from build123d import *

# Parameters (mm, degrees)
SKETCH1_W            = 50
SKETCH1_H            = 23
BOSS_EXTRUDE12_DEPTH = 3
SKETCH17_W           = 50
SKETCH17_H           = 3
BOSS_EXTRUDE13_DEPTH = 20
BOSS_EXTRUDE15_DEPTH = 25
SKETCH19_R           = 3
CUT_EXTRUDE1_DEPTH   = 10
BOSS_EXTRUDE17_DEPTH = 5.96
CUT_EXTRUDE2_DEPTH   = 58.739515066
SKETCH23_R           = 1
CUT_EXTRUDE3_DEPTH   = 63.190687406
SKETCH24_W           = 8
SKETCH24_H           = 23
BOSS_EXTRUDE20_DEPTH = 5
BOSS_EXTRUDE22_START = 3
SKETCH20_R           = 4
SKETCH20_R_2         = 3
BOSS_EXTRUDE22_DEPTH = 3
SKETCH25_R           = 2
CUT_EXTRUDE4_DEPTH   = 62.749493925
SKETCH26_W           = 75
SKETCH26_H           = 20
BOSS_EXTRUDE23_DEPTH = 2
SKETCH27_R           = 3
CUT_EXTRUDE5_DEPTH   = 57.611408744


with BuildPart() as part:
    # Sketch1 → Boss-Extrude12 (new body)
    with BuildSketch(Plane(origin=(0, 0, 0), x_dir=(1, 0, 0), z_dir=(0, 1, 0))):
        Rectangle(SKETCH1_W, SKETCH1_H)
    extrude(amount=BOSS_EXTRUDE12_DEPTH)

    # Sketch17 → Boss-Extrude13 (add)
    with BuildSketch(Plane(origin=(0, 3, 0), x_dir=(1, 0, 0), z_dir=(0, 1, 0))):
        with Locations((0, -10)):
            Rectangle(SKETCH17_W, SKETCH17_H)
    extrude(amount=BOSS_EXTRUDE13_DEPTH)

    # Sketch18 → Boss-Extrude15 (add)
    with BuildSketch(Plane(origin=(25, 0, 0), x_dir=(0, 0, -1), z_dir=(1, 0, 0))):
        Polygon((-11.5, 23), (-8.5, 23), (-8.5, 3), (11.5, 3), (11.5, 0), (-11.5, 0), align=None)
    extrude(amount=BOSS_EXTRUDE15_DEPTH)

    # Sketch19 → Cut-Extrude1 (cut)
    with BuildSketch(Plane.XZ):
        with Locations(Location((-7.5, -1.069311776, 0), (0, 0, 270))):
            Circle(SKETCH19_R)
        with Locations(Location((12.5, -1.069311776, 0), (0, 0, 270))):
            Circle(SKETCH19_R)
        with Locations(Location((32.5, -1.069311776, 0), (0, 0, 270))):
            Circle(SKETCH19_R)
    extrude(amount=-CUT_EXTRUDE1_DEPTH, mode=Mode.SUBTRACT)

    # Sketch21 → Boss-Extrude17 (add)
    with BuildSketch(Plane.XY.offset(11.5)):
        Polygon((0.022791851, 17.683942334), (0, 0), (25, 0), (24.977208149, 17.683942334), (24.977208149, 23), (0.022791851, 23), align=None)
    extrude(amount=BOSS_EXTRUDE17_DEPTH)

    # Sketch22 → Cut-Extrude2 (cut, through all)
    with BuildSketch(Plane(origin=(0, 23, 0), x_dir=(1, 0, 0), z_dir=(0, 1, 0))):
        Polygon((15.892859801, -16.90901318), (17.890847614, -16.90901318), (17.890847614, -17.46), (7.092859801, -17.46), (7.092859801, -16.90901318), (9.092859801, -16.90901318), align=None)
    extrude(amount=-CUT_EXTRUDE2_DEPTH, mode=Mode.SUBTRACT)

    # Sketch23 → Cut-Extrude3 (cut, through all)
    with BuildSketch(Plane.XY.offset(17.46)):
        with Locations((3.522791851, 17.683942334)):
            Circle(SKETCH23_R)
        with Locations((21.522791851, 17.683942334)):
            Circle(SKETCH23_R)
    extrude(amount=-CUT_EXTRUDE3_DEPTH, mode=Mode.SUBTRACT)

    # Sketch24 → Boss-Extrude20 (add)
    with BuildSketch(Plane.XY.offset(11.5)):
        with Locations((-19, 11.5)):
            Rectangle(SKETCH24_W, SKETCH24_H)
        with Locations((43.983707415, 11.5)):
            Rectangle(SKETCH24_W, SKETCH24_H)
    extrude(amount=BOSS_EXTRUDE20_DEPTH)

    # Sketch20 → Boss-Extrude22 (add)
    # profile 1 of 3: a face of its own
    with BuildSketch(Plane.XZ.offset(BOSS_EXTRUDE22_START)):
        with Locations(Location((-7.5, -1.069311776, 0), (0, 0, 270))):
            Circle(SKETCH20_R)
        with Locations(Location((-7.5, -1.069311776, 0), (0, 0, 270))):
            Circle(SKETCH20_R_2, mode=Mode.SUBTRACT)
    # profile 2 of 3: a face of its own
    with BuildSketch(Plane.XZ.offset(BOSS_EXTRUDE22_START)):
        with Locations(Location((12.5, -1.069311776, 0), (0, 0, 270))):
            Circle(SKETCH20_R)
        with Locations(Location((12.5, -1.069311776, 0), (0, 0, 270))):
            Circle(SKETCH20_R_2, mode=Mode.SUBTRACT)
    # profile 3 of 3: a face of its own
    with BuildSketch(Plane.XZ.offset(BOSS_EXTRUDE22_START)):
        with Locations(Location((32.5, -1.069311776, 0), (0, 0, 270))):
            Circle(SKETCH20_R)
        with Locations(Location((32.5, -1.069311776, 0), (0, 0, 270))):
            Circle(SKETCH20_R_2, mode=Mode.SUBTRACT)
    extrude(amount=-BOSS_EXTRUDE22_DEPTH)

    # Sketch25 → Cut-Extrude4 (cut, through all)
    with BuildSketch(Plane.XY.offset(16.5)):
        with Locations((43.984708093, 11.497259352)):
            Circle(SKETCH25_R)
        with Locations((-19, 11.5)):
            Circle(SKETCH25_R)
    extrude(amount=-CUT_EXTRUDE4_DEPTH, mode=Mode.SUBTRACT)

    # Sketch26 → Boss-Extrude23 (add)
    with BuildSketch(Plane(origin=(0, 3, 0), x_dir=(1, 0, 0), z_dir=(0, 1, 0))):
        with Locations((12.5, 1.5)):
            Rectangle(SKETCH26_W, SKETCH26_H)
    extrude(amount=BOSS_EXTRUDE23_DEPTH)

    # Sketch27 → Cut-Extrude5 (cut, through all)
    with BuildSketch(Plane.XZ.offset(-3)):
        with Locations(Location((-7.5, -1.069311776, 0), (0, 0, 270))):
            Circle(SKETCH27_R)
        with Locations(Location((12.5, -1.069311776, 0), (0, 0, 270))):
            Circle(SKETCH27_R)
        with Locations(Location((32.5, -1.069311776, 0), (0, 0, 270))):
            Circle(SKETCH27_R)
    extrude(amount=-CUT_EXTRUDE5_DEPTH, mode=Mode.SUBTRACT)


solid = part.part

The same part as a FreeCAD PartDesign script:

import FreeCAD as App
import Part
import Sketcher
Q = App.Units.Quantity

doc = App.newDocument("Part")
body = doc.addObject("PartDesign::Body", "Body")

# Sketch on XZ plane
sketch1 = body.newObject("Sketcher::SketchObject", "Sketch")
sketch1.AttachmentSupport = (doc.getObject("XZ_Plane"), [""])
sketch1.MapMode = "FlatFace"
sketch1.addGeometry([
    Part.LineSegment(App.Vector(-25, -12, 0), App.Vector(-25, 12, 0)),
    Part.LineSegment(App.Vector(-25, 12, 0), App.Vector(25, 12, 0)),
    Part.LineSegment(App.Vector(25, 12, 0), App.Vector(25, -12, 0)),
    Part.LineSegment(App.Vector(25, -12, 0), App.Vector(-25, -12, 0)),
], False)
sketch1.addConstraint([
    Sketcher.Constraint("Coincident", 0, 2, 1, 1),
    Sketcher.Constraint("Coincident", 1, 2, 2, 1),
    Sketcher.Constraint("Coincident", 2, 2, 3, 1),
    Sketcher.Constraint("Coincident", 3, 2, 0, 1),
    Sketcher.Constraint("Vertical", 0),
    Sketcher.Constraint("Horizontal", 1),
    Sketcher.Constraint("Vertical", 2),
    Sketcher.Constraint("Horizontal", 3),
    Sketcher.Constraint("Symmetric", 0, 2, 2, 2, -1, 1),
    Sketcher.Constraint("DistanceX", 1, 1, 1, 2, Q("50 mm")),
    Sketcher.Constraint("DistanceY", 0, 1, 0, 2, Q("23 mm")),
])
pad1 = body.newObject("PartDesign::Pad", "Pad")
pad1.Profile = sketch1
pad1.Length = 3
pad1.Reversed = True

# Sketch on XZ plane
sketch2 = body.newObject("Sketcher::SketchObject", "Sketch001")
sketch2.AttachmentSupport = (doc.getObject("XZ_Plane"), [""])
sketch2.MapMode = "FlatFace"
sketch2.AttachmentOffset = App.Placement(App.Vector(0, 0, -3), App.Rotation())
sketch2.addGeometry([
    Part.LineSegment(App.Vector(-25, 8.5, 0), App.Vector(-25, 11.5, 0)),
    Part.LineSegment(App.Vector(-25, 11.5, 0), App.Vector(25, 11.5, 0)),
    Part.LineSegment(App.Vector(25, 11.5, 0), App.Vector(25, 8.5, 0)),
    Part.LineSegment(App.Vector(25, 8.5, 0), App.Vector(-25, 8.5, 0)),
], False)
sketch2.addConstraint([
    Sketcher.Constraint("Coincident", 0, 2, 1, 1),
    Sketcher.Constraint("Coincident", 1, 2, 2, 1),
    Sketcher.Constraint("Coincident", 2, 2, 3, 1),
    Sketcher.Constraint("Coincident", 3, 2, 0, 1),
    Sketcher.Constraint("Vertical", 0),
    Sketcher.Constraint("Horizontal", 1),
    Sketcher.Constraint("Vertical", 2),
    Sketcher.Constraint("Horizontal", 3),
    Sketcher.Constraint("DistanceX", 1, 1, 1, 2, Q("50 mm")),
    Sketcher.Constraint("DistanceY", 0, 1, 0, 2, Q("3 mm")),
    Sketcher.Constraint("DistanceX", 0, 2, -1, 1, Q("25 mm")),
    Sketcher.Constraint("DistanceY", -1, 1, 0, 2, Q("11.5 mm")),
])
pad2 = body.newObject("PartDesign::Pad", "Pad001")
pad2.Profile = sketch2
pad2.Length = 20
pad2.Reversed = True

# Sketch on YZ plane
sketch3 = body.newObject("Sketcher::SketchObject", "Sketch002")
sketch3.AttachmentSupport = (doc.getObject("YZ_Plane"), [""])
sketch3.MapMode = "FlatFace"
sketch3.AttachmentOffset = App.Placement(App.Vector(0, 0, 25), App.Rotation())
sketch3.addGeometry([
    Part.LineSegment(App.Vector(23, 8.5, 0), App.Vector(23, 11.5, 0)),  # 0
    Part.LineSegment(App.Vector(23, 11.5, 0), App.Vector(0, 11.5, 0)),  # 1
    Part.LineSegment(App.Vector(0, 11.5, 0), App.Vector(0, -11.5, 0)),  # 2
    Part.LineSegment(App.Vector(0, -11.5, 0), App.Vector(3, -11.5, 0)),  # 3
    Part.LineSegment(App.Vector(3, -11.5, 0), App.Vector(3, 8.5, 0)),  # 4
    Part.LineSegment(App.Vector(3, 8.5, 0), App.Vector(23, 8.5, 0)),  # 5
], False)
sketch3.addConstraint([
    Sketcher.Constraint("Coincident", 0, 2, 1, 1),
    Sketcher.Constraint("Coincident", 1, 2, 2, 1),
    Sketcher.Constraint("Coincident", 2, 2, 3, 1),
    Sketcher.Constraint("Coincident", 3, 2, 4, 1),
    Sketcher.Constraint("Coincident", 4, 2, 5, 1),
    Sketcher.Constraint("Coincident", 5, 2, 0, 1),
    Sketcher.Constraint("Vertical", 0),
    Sketcher.Constraint("Horizontal", 1),
    Sketcher.Constraint("Vertical", 2),
    Sketcher.Constraint("Horizontal", 3),
    Sketcher.Constraint("Vertical", 4),
    Sketcher.Constraint("Horizontal", 5),
    Sketcher.Constraint("Symmetric", 1, 2, 2, 2, -1, 1),
    Sketcher.Constraint("Equal", 3, 0),
    Sketcher.Constraint("Equal", 1, 2),
    Sketcher.Constraint("DistanceX", 1, 2, 1, 1, Q("23 mm")),
    Sketcher.Constraint("DistanceX", 3, 1, 3, 2, Q("3 mm")),
])
pad3 = body.newObject("PartDesign::Pad", "Pad002")
pad3.Profile = sketch3
pad3.Length = 25

# Sketch on XZ plane
sketch4 = body.newObject("Sketcher::SketchObject", "Sketch003")
sketch4.AttachmentSupport = (doc.getObject("XZ_Plane"), [""])
sketch4.MapMode = "FlatFace"
sketch4.addGeometry([
    Part.Circle(App.Vector(-7.5, -1.1, 0), App.Vector(0, 0, 1), 3),
    Part.Circle(App.Vector(12.5, -1.1, 0), App.Vector(0, 0, 1), 3),
    Part.Circle(App.Vector(32.5, -1.1, 0), App.Vector(0, 0, 1), 3),
], False)
sketch4.addConstraint([
    Sketcher.Constraint("Equal", 0, 1),
    Sketcher.Constraint("Equal", 1, 2),
    Sketcher.Constraint("Horizontal", 0, 3, 1, 3),
    Sketcher.Constraint("Horizontal", 1, 3, 2, 3),
    Sketcher.Constraint("Diameter", 0, Q("6 mm")),
    Sketcher.Constraint("DistanceX", 0, 3, 1, 3, Q("20 mm")),
    Sketcher.Constraint("DistanceX", 1, 3, 2, 3, Q("20 mm")),
    Sketcher.Constraint("DistanceX", 0, 3, -1, 1, Q("7.5 mm")),
    Sketcher.Constraint("DistanceY", 0, 3, -1, 1, Q("1.069312 mm")),
])
pocket1 = body.newObject("PartDesign::Pocket", "Pocket")
pocket1.Profile = sketch4
pocket1.Length = 10

# Sketch on XY plane
sketch5 = body.newObject("Sketcher::SketchObject", "Sketch004")
sketch5.AttachmentSupport = (doc.getObject("XY_Plane"), [""])
sketch5.MapMode = "FlatFace"
sketch5.AttachmentOffset = App.Placement(App.Vector(0, 0, 11.5), App.Rotation())
sketch5.addGeometry([
    Part.LineSegment(App.Vector(0, 18, 0), App.Vector(0, 0, 0)),  # 0
    Part.LineSegment(App.Vector(0, 0, 0), App.Vector(25, 0, 0)),  # 1
    Part.LineSegment(App.Vector(25, 0, 0), App.Vector(25, 18, 0)),  # 2
    Part.LineSegment(App.Vector(25, 18, 0), App.Vector(25, 23, 0)),  # 3
    Part.LineSegment(App.Vector(25, 23, 0), App.Vector(0, 23, 0)),  # 4
    Part.LineSegment(App.Vector(0, 23, 0), App.Vector(0, 18, 0)),  # 5
], False)
sketch5.addConstraint([
    Sketcher.Constraint("Coincident", 0, 2, 1, 1),
    Sketcher.Constraint("Coincident", 1, 2, 2, 1),
    Sketcher.Constraint("Coincident", 2, 2, 3, 1),
    Sketcher.Constraint("Coincident", 3, 2, 4, 1),
    Sketcher.Constraint("Coincident", 4, 2, 5, 1),
    Sketcher.Constraint("Coincident", 5, 2, 0, 1),
    Sketcher.Constraint("Horizontal", 1),
    Sketcher.Constraint("Vertical", 3),
    Sketcher.Constraint("Horizontal", 4),
    Sketcher.Constraint("Vertical", 5),
    Sketcher.Constraint("Coincident", 0, 2, -1, 1),
    Sketcher.Constraint("Horizontal", 2, 2, 5, 2),
    Sketcher.Constraint("DistanceX", 1, 1, 1, 2, Q("25 mm")),
    Sketcher.Constraint("DistanceY", -1, 1, 3, 2, Q("23 mm")),
    Sketcher.Constraint("DistanceX", 4, 2, 4, 1, Q("24.954416 mm")),
    Sketcher.Constraint("DistanceY", 3, 1, 3, 2, Q("5.316058 mm")),
    Sketcher.Constraint("DistanceX", -1, 1, 2, 2, Q("24.977208 mm")),
])
pad4 = body.newObject("PartDesign::Pad", "Pad003")
pad4.Profile = sketch5
pad4.Length = 5.96

# Sketch on XZ plane
sketch6 = body.newObject("Sketcher::SketchObject", "Sketch005")
sketch6.AttachmentSupport = (doc.getObject("XZ_Plane"), [""])
sketch6.MapMode = "FlatFace"
sketch6.AttachmentOffset = App.Placement(App.Vector(0, 0, -23), App.Rotation())
sketch6.addGeometry([
    Part.LineSegment(App.Vector(17.9, 16.9, 0), App.Vector(7.1, 16.9, 0)),
    Part.LineSegment(App.Vector(7.1, 16.9, 0), App.Vector(7.1, 17.5, 0)),
    Part.LineSegment(App.Vector(7.1, 17.5, 0), App.Vector(17.9, 17.5, 0)),
    Part.LineSegment(App.Vector(17.9, 17.5, 0), App.Vector(17.9, 16.9, 0)),
], False)
sketch6.addConstraint([
    Sketcher.Constraint("Coincident", 0, 2, 1, 1),
    Sketcher.Constraint("Coincident", 1, 2, 2, 1),
    Sketcher.Constraint("Coincident", 2, 2, 3, 1),
    Sketcher.Constraint("Coincident", 3, 2, 0, 1),
    Sketcher.Constraint("Horizontal", 0),
    Sketcher.Constraint("Vertical", 1),
    Sketcher.Constraint("Horizontal", 2),
    Sketcher.Constraint("Vertical", 3),
    Sketcher.Constraint("DistanceY", -1, 1, 1, 2, Q("17.46 mm")),
    Sketcher.Constraint("DistanceX", 0, 2, 0, 1, Q("10.797988 mm")),
    Sketcher.Constraint("DistanceY", 1, 1, 1, 2, Q("0.550987 mm")),
    Sketcher.Constraint("DistanceX", -1, 1, 0, 2, Q("7.09286 mm")),
])
pocket2 = body.newObject("PartDesign::Pocket", "Pocket001")
pocket2.Profile = sketch6
pocket2.Type = "ThroughAll"
pocket2.Reversed = True

# Sketch on XY plane
sketch7 = body.newObject("Sketcher::SketchObject", "Sketch006")
sketch7.AttachmentSupport = (doc.getObject("XY_Plane"), [""])
sketch7.MapMode = "FlatFace"
sketch7.AttachmentOffset = App.Placement(App.Vector(0, 0, 17.46), App.Rotation())
sketch7.addGeometry([
    Part.Circle(App.Vector(3.5, 17.7, 0), App.Vector(0, 0, 1), 1),
    Part.Circle(App.Vector(21.5, 17.7, 0), App.Vector(0, 0, 1), 1),
], False)
sketch7.addConstraint([
    Sketcher.Constraint("Equal", 0, 1),
    Sketcher.Constraint("Horizontal", 0, 3, 1, 3),
    Sketcher.Constraint("Diameter", 0, Q("2 mm")),
    Sketcher.Constraint("DistanceX", 0, 3, 1, 3, Q("18 mm")),
    Sketcher.Constraint("DistanceX", -1, 1, 0, 3, Q("3.522792 mm")),
    Sketcher.Constraint("DistanceY", -1, 1, 0, 3, Q("17.683942 mm")),
])
pocket3 = body.newObject("PartDesign::Pocket", "Pocket002")
pocket3.Profile = sketch7
pocket3.Type = "ThroughAll"

# Sketch on XY plane
sketch8 = body.newObject("Sketcher::SketchObject", "Sketch007")
sketch8.AttachmentSupport = (doc.getObject("XY_Plane"), [""])
sketch8.MapMode = "FlatFace"
sketch8.AttachmentOffset = App.Placement(App.Vector(0, 0, 11.5), App.Rotation())
sketch8.addGeometry([
    Part.LineSegment(App.Vector(-23, 23, 0), App.Vector(-23, 0, 0)),  # 0
    Part.LineSegment(App.Vector(-23, 0, 0), App.Vector(-15, 0, 0)),  # 1
    Part.LineSegment(App.Vector(-15, 0, 0), App.Vector(-15, 23, 0)),  # 2
    Part.LineSegment(App.Vector(-15, 23, 0), App.Vector(-23, 23, 0)),  # 3
    Part.LineSegment(App.Vector(40, 23, 0), App.Vector(40, 0, 0)),  # 4
    Part.LineSegment(App.Vector(40, 0, 0), App.Vector(48, 0, 0)),  # 5
    Part.LineSegment(App.Vector(48, 0, 0), App.Vector(48, 23, 0)),  # 6
    Part.LineSegment(App.Vector(48, 23, 0), App.Vector(40, 23, 0)),  # 7
], False)
sketch8.addConstraint([
    Sketcher.Constraint("Coincident", 0, 2, 1, 1),
    Sketcher.Constraint("Coincident", 1, 2, 2, 1),
    Sketcher.Constraint("Coincident", 2, 2, 3, 1),
    Sketcher.Constraint("Coincident", 3, 2, 0, 1),
    Sketcher.Constraint("Coincident", 4, 2, 5, 1),
    Sketcher.Constraint("Coincident", 5, 2, 6, 1),
    Sketcher.Constraint("Coincident", 6, 2, 7, 1),
    Sketcher.Constraint("Coincident", 7, 2, 4, 1),
    Sketcher.Constraint("Vertical", 0),
    Sketcher.Constraint("Horizontal", 1),
    Sketcher.Constraint("Vertical", 2),
    Sketcher.Constraint("Horizontal", 3),
    Sketcher.Constraint("Vertical", 4),
    Sketcher.Constraint("Horizontal", 5),
    Sketcher.Constraint("Vertical", 6),
    Sketcher.Constraint("Horizontal", 7),
    Sketcher.Constraint("PointOnObject", 0, 2, -1),
    Sketcher.Constraint("PointOnObject", 4, 2, -1),
    Sketcher.Constraint("Horizontal", 3, 2, 6, 2),
    Sketcher.Constraint("Equal", 3, 5),
    Sketcher.Constraint("DistanceX", 1, 1, 1, 2, Q("8 mm")),
    Sketcher.Constraint("DistanceY", 0, 2, 0, 1, Q("23 mm")),
    Sketcher.Constraint("DistanceX", 0, 2, -1, 1, Q("23 mm")),
    Sketcher.Constraint("DistanceX", -1, 1, 4, 2, Q("39.983707 mm")),
])
pad5 = body.newObject("PartDesign::Pad", "Pad004")
pad5.Profile = sketch8
pad5.Length = 5

# Sketch on XZ plane
sketch9 = body.newObject("Sketcher::SketchObject", "Sketch008")
sketch9.AttachmentSupport = (doc.getObject("XZ_Plane"), [""])
sketch9.MapMode = "FlatFace"
sketch9.AttachmentOffset = App.Placement(App.Vector(0, 0, 3), App.Rotation())
sketch9.addGeometry([
    Part.Circle(App.Vector(-7.5, -1.1, 0), App.Vector(0, 0, 1), 4),  # 0
    Part.Circle(App.Vector(-7.5, -1.1, 0), App.Vector(0, 0, 1), 3),  # 1
    Part.Circle(App.Vector(12.5, -1.1, 0), App.Vector(0, 0, 1), 4),  # 2
    Part.Circle(App.Vector(12.5, -1.1, 0), App.Vector(0, 0, 1), 3),  # 3
    Part.Circle(App.Vector(32.5, -1.1, 0), App.Vector(0, 0, 1), 4),  # 4
    Part.Circle(App.Vector(32.5, -1.1, 0), App.Vector(0, 0, 1), 3),  # 5
], False)
sketch9.addConstraint([
    Sketcher.Constraint("Coincident", 1, 3, 0, 3),
    Sketcher.Constraint("Coincident", 3, 3, 2, 3),
    Sketcher.Constraint("Coincident", 5, 3, 4, 3),
    Sketcher.Constraint("Equal", 0, 2),
    Sketcher.Constraint("Equal", 1, 3),
    Sketcher.Constraint("Equal", 2, 4),
    Sketcher.Constraint("Equal", 3, 5),
    Sketcher.Constraint("Horizontal", 1, 3, 2, 3),
    Sketcher.Constraint("Horizontal", 3, 3, 4, 3),
    Sketcher.Constraint("Diameter", 0, Q("8 mm")),
    Sketcher.Constraint("Diameter", 1, Q("6 mm")),
    Sketcher.Constraint("DistanceX", 0, 3, 2, 3, Q("20 mm")),
    Sketcher.Constraint("DistanceX", 2, 3, 4, 3, Q("20 mm")),
    Sketcher.Constraint("DistanceX", 0, 3, -1, 1, Q("7.5 mm")),
    Sketcher.Constraint("DistanceY", 0, 3, -1, 1, Q("1.069312 mm")),
])
pad6 = body.newObject("PartDesign::Pad", "Pad005")
pad6.Profile = sketch9
pad6.Length = 3
pad6.Reversed = True

# Sketch on XY plane
sketch10 = body.newObject("Sketcher::SketchObject", "Sketch009")
sketch10.AttachmentSupport = (doc.getObject("XY_Plane"), [""])
sketch10.MapMode = "FlatFace"
sketch10.AttachmentOffset = App.Placement(App.Vector(0, 0, 16.5), App.Rotation())
sketch10.addGeometry([
    Part.Circle(App.Vector(44, 11.5, 0), App.Vector(0, 0, 1), 2),
    Part.Circle(App.Vector(-19, 11.5, 0), App.Vector(0, 0, 1), 2),
], False)
sketch10.addConstraint([
    Sketcher.Constraint("Equal", 0, 1),
    Sketcher.Constraint("Diameter", 0, Q("4 mm")),
    Sketcher.Constraint("DistanceX", 1, 3, -1, 1, Q("19 mm")),
    Sketcher.Constraint("DistanceY", -1, 1, 1, 3, Q("11.5 mm")),
    Sketcher.Constraint("DistanceX", -1, 1, 0, 3, Q("43.984708 mm")),
    Sketcher.Constraint("DistanceY", -1, 1, 0, 3, Q("11.497259 mm")),
])
pocket4 = body.newObject("PartDesign::Pocket", "Pocket003")
pocket4.Profile = sketch10
pocket4.Type = "ThroughAll"

# Sketch on XZ plane
sketch11 = body.newObject("Sketcher::SketchObject", "Sketch010")
sketch11.AttachmentSupport = (doc.getObject("XZ_Plane"), [""])
sketch11.MapMode = "FlatFace"
sketch11.AttachmentOffset = App.Placement(App.Vector(0, 0, -3), App.Rotation())
sketch11.addGeometry([
    Part.LineSegment(App.Vector(-25, -12, 0), App.Vector(-25, 8, 0)),
    Part.LineSegment(App.Vector(-25, 8, 0), App.Vector(50, 8, 0)),
    Part.LineSegment(App.Vector(50, 8, 0), App.Vector(50, -12, 0)),
    Part.LineSegment(App.Vector(50, -12, 0), App.Vector(-25, -12, 0)),
], False)
sketch11.addConstraint([
    Sketcher.Constraint("Coincident", 0, 2, 1, 1),
    Sketcher.Constraint("Coincident", 1, 2, 2, 1),
    Sketcher.Constraint("Coincident", 2, 2, 3, 1),
    Sketcher.Constraint("Coincident", 3, 2, 0, 1),
    Sketcher.Constraint("Vertical", 0),
    Sketcher.Constraint("Horizontal", 1),
    Sketcher.Constraint("Vertical", 2),
    Sketcher.Constraint("Horizontal", 3),
    Sketcher.Constraint("DistanceX", 1, 1, 1, 2, Q("75 mm")),
    Sketcher.Constraint("DistanceY", 0, 1, 0, 2, Q("20 mm")),
    Sketcher.Constraint("DistanceX", 0, 2, -1, 1, Q("25 mm")),
    Sketcher.Constraint("DistanceY", -1, 1, 0, 2, Q("8.5 mm")),
])
pad7 = body.newObject("PartDesign::Pad", "Pad006")
pad7.Profile = sketch11
pad7.Length = 2
pad7.Reversed = True

# Sketch on XZ plane
sketch12 = body.newObject("Sketcher::SketchObject", "Sketch011")
sketch12.AttachmentSupport = (doc.getObject("XZ_Plane"), [""])
sketch12.MapMode = "FlatFace"
sketch12.AttachmentOffset = App.Placement(App.Vector(0, 0, -3), App.Rotation())
sketch12.addGeometry([
    Part.Circle(App.Vector(-7.5, -1.1, 0), App.Vector(0, 0, 1), 3),
    Part.Circle(App.Vector(12.5, -1.1, 0), App.Vector(0, 0, 1), 3),
    Part.Circle(App.Vector(32.5, -1.1, 0), App.Vector(0, 0, 1), 3),
], False)
sketch12.addConstraint([
    Sketcher.Constraint("Equal", 0, 1),
    Sketcher.Constraint("Equal", 1, 2),
    Sketcher.Constraint("Horizontal", 0, 3, 1, 3),
    Sketcher.Constraint("Horizontal", 1, 3, 2, 3),
    Sketcher.Constraint("Diameter", 0, Q("6 mm")),
    Sketcher.Constraint("DistanceX", 0, 3, 1, 3, Q("20 mm")),
    Sketcher.Constraint("DistanceX", 1, 3, 2, 3, Q("20 mm")),
    Sketcher.Constraint("DistanceX", 0, 3, -1, 1, Q("7.5 mm")),
    Sketcher.Constraint("DistanceY", 0, 3, -1, 1, Q("1.069312 mm")),
])
pocket5 = body.newObject("PartDesign::Pocket", "Pocket004")
pocket5.Profile = sketch12
pocket5.Type = "ThroughAll"

doc.recompute()
